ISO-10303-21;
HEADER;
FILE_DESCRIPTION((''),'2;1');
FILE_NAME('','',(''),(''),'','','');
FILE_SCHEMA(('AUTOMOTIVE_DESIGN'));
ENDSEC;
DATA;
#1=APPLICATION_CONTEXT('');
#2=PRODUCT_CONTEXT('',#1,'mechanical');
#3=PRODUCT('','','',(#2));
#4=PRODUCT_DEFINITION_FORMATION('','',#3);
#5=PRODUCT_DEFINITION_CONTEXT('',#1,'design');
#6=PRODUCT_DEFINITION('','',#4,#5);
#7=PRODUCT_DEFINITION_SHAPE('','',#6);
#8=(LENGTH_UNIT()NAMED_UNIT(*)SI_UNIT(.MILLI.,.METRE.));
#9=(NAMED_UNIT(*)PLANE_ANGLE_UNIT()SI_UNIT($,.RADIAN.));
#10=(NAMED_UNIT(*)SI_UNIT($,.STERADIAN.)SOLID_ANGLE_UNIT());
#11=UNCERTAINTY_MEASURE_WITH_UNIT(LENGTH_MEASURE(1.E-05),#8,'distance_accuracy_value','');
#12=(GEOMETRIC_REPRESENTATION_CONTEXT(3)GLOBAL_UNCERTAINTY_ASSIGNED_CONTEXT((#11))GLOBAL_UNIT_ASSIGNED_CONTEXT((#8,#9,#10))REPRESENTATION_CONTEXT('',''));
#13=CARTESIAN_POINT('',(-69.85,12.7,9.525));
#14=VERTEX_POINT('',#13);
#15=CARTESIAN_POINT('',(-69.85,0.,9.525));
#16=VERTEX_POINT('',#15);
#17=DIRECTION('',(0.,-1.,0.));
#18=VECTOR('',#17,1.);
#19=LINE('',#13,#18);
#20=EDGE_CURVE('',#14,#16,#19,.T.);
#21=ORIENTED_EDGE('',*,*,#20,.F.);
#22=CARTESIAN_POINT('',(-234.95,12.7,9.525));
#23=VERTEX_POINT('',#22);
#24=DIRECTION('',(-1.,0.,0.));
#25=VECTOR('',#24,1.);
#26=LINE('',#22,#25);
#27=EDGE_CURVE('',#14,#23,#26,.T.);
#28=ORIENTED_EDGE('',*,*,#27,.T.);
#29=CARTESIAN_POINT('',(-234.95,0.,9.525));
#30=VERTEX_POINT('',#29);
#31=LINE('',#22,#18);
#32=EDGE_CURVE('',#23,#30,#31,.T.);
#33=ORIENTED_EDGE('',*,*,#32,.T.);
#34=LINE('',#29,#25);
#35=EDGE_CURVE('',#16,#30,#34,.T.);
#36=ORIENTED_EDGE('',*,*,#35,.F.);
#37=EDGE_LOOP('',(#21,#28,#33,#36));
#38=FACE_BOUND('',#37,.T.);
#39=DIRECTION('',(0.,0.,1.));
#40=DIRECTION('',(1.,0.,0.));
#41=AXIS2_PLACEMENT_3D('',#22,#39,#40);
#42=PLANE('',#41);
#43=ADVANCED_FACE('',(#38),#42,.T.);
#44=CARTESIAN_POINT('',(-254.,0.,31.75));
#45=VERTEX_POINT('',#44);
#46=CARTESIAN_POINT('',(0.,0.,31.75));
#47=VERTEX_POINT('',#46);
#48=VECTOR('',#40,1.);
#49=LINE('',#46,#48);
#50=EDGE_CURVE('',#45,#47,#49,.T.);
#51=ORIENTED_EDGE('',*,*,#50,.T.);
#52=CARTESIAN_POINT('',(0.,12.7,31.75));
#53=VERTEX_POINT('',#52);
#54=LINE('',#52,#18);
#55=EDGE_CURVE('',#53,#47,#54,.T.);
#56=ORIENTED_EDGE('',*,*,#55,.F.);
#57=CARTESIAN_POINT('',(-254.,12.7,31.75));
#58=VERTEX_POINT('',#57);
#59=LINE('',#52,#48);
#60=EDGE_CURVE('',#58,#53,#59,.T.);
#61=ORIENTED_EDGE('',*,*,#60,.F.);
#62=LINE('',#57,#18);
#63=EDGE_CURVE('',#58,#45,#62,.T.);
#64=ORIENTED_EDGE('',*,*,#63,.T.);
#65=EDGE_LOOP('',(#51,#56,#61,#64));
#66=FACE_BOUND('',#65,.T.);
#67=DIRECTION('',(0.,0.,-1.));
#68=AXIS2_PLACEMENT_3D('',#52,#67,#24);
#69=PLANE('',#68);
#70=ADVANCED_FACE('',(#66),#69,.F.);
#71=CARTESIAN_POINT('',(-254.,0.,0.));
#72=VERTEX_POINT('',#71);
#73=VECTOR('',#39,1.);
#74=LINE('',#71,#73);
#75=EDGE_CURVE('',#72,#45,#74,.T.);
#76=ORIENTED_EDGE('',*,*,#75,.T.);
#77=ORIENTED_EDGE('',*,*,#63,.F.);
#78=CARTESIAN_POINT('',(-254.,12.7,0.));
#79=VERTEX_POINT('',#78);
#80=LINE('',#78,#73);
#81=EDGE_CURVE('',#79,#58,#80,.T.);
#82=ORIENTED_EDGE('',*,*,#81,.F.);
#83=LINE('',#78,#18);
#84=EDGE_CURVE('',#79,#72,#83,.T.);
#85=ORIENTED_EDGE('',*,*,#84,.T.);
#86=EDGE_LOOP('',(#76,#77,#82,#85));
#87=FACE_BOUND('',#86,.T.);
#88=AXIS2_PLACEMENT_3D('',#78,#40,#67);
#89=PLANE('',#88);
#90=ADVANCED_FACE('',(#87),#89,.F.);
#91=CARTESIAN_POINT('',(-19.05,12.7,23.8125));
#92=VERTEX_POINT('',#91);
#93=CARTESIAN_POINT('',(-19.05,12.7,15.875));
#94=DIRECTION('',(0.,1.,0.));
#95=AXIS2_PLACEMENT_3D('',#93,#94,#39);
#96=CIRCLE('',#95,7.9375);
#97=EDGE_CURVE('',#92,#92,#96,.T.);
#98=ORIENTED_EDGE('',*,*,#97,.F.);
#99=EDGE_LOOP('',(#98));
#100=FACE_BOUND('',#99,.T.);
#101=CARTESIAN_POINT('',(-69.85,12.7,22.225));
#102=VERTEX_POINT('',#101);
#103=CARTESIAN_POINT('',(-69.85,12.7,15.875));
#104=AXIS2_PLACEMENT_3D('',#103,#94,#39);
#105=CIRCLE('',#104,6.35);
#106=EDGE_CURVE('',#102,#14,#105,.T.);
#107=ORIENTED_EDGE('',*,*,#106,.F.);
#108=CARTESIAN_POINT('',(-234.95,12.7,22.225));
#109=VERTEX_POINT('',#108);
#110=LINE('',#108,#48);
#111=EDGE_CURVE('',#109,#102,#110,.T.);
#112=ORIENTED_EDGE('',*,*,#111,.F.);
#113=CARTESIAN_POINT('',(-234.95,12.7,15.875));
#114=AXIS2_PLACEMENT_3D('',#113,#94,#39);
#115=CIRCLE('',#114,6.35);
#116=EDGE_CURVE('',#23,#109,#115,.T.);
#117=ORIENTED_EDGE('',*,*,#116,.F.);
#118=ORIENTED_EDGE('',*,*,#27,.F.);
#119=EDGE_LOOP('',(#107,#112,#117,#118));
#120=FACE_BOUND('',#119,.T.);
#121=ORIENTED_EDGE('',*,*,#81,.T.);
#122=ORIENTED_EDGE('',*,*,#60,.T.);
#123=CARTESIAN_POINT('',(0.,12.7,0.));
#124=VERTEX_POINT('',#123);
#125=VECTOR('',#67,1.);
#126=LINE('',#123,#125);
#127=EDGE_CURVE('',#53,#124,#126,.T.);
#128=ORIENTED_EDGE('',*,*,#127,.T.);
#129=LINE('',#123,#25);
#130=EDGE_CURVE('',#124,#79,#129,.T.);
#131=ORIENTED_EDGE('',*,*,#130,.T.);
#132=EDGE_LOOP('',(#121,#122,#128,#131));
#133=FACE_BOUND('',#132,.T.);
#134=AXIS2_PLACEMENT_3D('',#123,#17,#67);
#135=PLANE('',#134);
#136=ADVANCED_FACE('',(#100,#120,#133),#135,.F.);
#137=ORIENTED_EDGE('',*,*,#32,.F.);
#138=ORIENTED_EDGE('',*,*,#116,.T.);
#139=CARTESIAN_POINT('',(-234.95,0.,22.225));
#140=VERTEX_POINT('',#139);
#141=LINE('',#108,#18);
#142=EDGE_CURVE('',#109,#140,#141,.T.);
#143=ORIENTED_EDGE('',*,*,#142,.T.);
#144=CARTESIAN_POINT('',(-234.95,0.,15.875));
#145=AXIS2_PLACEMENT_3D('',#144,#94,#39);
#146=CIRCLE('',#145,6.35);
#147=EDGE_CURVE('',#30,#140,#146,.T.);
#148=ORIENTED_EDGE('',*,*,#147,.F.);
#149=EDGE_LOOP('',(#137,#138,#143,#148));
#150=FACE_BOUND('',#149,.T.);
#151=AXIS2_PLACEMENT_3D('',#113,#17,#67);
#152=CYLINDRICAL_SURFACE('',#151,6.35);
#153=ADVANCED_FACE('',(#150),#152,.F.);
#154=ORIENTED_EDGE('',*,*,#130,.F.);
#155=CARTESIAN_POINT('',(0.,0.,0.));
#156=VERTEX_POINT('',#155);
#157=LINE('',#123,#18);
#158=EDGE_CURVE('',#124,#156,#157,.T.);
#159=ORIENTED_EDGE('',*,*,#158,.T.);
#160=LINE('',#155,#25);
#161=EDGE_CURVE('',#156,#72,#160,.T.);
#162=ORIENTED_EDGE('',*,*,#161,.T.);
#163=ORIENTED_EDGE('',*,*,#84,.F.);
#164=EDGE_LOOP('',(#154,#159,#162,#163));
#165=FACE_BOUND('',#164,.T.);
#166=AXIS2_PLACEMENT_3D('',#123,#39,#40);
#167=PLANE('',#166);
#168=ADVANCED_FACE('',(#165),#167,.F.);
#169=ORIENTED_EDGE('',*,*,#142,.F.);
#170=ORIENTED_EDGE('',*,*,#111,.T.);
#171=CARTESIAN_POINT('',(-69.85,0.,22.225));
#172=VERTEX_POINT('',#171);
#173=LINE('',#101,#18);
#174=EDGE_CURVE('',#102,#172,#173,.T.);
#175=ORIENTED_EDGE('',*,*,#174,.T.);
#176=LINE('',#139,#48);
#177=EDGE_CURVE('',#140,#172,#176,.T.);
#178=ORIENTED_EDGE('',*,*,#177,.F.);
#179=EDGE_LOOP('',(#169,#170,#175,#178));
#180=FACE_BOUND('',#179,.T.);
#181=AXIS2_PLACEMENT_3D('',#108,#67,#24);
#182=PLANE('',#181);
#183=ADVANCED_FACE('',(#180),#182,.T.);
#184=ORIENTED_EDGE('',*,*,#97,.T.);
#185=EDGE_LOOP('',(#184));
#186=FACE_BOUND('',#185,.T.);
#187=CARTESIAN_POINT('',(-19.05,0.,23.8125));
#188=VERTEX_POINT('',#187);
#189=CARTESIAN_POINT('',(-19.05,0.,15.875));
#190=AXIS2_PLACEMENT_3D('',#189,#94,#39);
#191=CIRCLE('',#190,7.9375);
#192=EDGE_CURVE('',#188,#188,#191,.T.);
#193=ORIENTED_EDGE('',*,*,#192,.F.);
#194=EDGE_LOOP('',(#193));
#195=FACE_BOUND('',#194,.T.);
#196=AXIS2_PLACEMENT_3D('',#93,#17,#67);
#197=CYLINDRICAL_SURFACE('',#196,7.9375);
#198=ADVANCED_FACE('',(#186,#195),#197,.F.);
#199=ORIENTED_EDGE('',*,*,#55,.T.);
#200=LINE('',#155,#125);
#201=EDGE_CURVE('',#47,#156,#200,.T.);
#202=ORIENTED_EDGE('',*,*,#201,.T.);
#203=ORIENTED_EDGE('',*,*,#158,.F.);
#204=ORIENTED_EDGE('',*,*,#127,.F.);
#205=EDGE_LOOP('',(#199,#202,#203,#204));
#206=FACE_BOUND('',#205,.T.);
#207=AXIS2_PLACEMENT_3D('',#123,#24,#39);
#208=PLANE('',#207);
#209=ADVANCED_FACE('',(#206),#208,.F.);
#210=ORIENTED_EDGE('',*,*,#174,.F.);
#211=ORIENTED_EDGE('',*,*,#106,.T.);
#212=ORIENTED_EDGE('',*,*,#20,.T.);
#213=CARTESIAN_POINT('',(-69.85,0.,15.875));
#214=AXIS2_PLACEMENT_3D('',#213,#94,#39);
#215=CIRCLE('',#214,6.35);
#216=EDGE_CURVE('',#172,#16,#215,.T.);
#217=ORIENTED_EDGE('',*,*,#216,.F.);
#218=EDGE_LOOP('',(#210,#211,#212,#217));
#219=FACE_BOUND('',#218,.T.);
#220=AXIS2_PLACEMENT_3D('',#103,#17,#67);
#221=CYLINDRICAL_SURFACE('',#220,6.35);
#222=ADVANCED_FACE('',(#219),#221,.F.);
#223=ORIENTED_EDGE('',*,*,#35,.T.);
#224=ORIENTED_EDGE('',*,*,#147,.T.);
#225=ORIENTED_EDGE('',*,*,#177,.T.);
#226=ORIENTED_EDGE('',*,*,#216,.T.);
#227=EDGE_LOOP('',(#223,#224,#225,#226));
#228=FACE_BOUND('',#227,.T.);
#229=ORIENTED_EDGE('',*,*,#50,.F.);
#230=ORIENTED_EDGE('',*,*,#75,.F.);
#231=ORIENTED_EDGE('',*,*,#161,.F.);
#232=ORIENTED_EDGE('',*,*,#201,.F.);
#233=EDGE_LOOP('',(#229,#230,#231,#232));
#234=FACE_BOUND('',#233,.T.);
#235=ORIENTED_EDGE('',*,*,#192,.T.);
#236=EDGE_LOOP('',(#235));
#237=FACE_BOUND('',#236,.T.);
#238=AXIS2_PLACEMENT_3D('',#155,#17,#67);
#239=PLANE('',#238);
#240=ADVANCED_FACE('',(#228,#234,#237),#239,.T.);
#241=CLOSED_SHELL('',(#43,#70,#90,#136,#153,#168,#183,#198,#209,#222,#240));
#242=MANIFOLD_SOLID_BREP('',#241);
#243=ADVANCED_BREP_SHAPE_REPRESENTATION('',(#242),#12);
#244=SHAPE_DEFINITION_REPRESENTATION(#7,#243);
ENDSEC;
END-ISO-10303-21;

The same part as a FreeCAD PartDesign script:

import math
import FreeCAD as App
import Part
import Sketcher
from FreeCAD import Vector
Q = App.Units.Quantity


def add_polygon(sketch, points):
    """Adds a closed chain of lines whose ends are joined by coincident constraints."""
    first, n = sketch.GeometryCount, len(points)
    for a, b in zip(points, points[1:] + points[:1]):
        sketch.addGeometry(Part.LineSegment(App.Vector(*a, 0), App.Vector(*b, 0)), False)
    for i in range(n):
        sketch.addConstraint(Sketcher.Constraint("Coincident", first + i, 2, first + (i + 1) % n, 1))

doc = App.newDocument("Part")
body = doc.addObject("PartDesign::Body", "Body")

# Sketch on XZ plane
sketch1 = body.newObject("Sketcher::SketchObject", "Sketch")
sketch1.AttachmentSupport = (doc.getObject("XZ_Plane"), [""])
sketch1.MapMode = "FlatFace"
add_polygon(sketch1, [(-254, 0), (-254, 31.75), (0, 31.75), (0, 0)])  # lines 0-3
sketch1.addGeometry(Part.ArcOfCircle(Part.Circle(Vector(-234.95, 15.875, 0), Vector(0, 0, 1), 6.35), math.radians(90), math.radians(270)), False)  # 4
sketch1.addGeometry(Part.LineSegment(Vector(-234.95, 9.525, 0), Vector(-69.85, 9.525, 0)), False)  # 5
sketch1.addGeometry(Part.ArcOfCircle(Part.Circle(Vector(-69.85, 15.875, 0), Vector(0, 0, 1), 6.35), math.radians(-90), math.radians(90)), False)  # 6
sketch1.addGeometry(Part.LineSegment(Vector(-69.85, 22.225, 0), Vector(-234.95, 22.225, 0)), False)  # 7
sketch1.addGeometry(Part.Circle(Vector(-19.05, 15.875, 0), Vector(0, 0, 1), 7.9375), False)  # 8
sketch1.addConstraint([
    Sketcher.Constraint("Tangent", 4, 2, 5, 1),
    Sketcher.Constraint("Tangent", 5, 2, 6, 1),
    Sketcher.Constraint("Tangent", 6, 2, 7, 1),
    Sketcher.Constraint("Tangent", 7, 2, 4, 1),
    Sketcher.Constraint("Vertical", 0),
    Sketcher.Constraint("Horizontal", 1),
    Sketcher.Constraint("Vertical", 2),
    Sketcher.Constraint("Horizontal", 3),
    Sketcher.Constraint("Horizontal", 5),
    Sketcher.Constraint("Horizontal", 7),
    Sketcher.Constraint("Coincident", 2, 2, -1, 1),
    Sketcher.Constraint("Horizontal", 6, 3, 8, 3),
    Sketcher.Constraint("DistanceX", 1, 1, 1, 2, Q("10 in")),
    Sketcher.Constraint("Radius", 4, Q("0.25 in")),
    Sketcher.Constraint("Diameter", 8, Q("0.625 in")),
    Sketcher.Constraint("DistanceX", 5, 1, 5, 2, Q("6.5 in")),
    Sketcher.Constraint("DistanceX", 6, 3, 8, 3, Q("2 in")),
    Sketcher.Constraint("DistanceY", 0, 1, 0, 2, Q("1.25 in")),
    Sketcher.Constraint("DistanceX", 4, 3, -1, 1, Q("9.25 in")),
    Sketcher.Constraint("DistanceY", -1, 1, 4, 3, Q("0.625 in")),
])
pad1 = body.newObject("PartDesign::Pad", "Pad")
pad1.Profile = sketch1
pad1.Length = Q("0.5 in")
pad1.Reversed = True

doc.recompute()
